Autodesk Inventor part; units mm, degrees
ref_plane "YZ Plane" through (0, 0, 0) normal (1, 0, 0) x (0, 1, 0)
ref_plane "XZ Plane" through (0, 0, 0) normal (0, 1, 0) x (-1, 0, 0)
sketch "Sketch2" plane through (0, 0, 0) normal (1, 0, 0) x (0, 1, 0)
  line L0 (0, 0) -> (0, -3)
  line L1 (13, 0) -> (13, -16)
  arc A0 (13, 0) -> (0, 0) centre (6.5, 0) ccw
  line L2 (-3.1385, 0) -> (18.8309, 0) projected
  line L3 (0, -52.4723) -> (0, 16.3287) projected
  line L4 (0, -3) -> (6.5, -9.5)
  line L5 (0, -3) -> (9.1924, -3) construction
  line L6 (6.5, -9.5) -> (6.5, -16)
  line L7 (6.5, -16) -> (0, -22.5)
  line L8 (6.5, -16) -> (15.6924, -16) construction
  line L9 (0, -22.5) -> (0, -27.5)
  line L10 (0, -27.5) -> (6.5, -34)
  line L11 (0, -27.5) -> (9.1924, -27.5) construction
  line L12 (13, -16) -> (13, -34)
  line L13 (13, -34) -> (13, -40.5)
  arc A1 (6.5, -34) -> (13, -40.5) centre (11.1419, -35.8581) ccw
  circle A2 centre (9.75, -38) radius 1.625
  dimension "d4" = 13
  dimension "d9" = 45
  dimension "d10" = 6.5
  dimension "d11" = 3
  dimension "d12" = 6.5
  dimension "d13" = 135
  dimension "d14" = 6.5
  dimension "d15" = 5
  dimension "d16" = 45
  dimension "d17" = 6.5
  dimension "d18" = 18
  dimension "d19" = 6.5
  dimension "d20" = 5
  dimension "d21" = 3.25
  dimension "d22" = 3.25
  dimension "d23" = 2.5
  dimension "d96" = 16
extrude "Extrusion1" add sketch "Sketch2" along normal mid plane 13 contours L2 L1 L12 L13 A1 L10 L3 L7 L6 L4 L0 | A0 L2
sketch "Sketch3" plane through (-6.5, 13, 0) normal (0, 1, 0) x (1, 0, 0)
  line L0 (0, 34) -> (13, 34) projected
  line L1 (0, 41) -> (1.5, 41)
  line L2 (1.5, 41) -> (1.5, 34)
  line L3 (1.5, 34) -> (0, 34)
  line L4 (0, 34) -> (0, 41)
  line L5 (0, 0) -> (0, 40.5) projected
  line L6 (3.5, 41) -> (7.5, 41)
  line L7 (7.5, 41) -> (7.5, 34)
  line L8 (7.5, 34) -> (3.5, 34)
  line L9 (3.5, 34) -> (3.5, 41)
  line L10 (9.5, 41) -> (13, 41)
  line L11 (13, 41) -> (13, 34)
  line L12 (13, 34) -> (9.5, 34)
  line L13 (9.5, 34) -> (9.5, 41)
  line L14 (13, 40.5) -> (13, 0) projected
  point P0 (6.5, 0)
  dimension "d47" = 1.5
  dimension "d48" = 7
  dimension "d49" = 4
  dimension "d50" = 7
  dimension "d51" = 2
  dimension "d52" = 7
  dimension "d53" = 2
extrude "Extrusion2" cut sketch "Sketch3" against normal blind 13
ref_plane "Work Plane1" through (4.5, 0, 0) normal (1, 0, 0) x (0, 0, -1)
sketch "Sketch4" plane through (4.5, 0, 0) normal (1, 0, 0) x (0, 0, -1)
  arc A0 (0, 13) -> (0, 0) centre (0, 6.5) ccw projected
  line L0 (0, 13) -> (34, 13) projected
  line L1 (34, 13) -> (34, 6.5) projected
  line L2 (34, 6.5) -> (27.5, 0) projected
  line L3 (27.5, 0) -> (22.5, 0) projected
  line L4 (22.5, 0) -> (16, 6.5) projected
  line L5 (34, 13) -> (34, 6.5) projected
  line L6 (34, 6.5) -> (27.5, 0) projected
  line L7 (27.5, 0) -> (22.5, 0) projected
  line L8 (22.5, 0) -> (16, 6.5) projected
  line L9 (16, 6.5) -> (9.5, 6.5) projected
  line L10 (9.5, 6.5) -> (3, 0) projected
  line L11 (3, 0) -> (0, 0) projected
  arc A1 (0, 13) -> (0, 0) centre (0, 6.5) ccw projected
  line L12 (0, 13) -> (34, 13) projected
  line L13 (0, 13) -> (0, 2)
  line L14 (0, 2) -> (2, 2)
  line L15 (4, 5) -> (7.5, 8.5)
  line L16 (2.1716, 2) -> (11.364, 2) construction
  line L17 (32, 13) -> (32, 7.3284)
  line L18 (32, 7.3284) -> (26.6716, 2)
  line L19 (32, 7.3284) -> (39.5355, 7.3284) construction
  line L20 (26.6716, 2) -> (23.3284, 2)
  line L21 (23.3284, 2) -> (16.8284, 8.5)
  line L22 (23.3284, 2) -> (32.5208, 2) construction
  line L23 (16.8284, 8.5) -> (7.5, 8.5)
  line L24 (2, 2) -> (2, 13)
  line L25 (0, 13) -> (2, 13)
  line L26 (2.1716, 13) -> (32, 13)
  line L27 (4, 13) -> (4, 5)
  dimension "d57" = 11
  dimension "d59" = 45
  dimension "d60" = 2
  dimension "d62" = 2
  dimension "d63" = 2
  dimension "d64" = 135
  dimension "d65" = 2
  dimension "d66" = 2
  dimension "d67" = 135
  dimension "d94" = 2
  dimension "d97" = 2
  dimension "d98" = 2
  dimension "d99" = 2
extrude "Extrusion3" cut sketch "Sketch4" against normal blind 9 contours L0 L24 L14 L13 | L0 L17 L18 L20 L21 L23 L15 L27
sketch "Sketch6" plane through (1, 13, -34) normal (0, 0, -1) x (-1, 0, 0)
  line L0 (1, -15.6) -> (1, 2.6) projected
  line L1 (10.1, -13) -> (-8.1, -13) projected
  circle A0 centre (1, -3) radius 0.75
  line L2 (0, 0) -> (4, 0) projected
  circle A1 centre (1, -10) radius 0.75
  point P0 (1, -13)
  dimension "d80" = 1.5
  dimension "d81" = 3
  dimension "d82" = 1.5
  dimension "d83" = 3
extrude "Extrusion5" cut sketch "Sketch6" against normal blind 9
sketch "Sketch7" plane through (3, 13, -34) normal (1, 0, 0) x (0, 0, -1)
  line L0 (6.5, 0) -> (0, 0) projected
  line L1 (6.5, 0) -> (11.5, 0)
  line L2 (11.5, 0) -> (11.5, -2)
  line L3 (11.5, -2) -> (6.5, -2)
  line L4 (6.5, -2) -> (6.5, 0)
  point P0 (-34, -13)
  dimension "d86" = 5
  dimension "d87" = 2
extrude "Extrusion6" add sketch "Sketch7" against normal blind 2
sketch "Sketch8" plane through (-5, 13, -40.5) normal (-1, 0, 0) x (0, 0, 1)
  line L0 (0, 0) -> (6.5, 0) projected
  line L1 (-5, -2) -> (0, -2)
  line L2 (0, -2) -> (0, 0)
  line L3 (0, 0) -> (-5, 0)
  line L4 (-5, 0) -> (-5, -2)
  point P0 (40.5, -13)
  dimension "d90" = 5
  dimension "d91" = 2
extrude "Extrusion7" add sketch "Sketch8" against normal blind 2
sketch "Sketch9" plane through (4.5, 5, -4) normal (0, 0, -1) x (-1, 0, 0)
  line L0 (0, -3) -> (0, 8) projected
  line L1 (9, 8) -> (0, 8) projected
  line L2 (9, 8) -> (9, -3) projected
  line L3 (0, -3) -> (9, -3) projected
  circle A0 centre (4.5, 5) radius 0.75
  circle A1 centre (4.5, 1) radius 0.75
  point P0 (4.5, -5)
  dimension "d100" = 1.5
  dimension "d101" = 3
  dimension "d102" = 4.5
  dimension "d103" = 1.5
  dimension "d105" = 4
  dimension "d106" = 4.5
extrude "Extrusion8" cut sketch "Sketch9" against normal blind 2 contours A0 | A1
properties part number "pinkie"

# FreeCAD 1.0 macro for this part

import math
import FreeCAD as App
import Part
import Sketcher
from FreeCAD import Vector
Q = App.Units.Quantity

doc = App.newDocument("Part")
body = doc.addObject("PartDesign::Body", "Body")

sketch1 = body.newObject("Sketcher::SketchObject", "Sketch")
sketch1.AttachmentSupport = (doc.getObject("YZ_Plane"), [""])
sketch1.MapMode = "FlatFace"
sketch1.addGeometry(Part.ArcOfCircle(Part.Circle(Vector(6.5, 0, 0), Vector(0, 0, 1), 6.5), math.radians(0), math.radians(180)), False)
sketch1.addGeometry(Part.LineSegment(Vector(0, 0, 0), Vector(0, -3, 0)), False)
sketch1.addGeometry(Part.LineSegment(Vector(0, -3, 0), Vector(6.5, -9.5, 0)), False)
sketch1.addGeometry(Part.LineSegment(Vector(6.5, -9.5, 0), Vector(6.5, -16, 0)), False)
sketch1.addGeometry(Part.LineSegment(Vector(6.5, -16, 0), Vector(0, -22.5, 0)), False)
sketch1.addGeometry(Part.LineSegment(Vector(0, -22.5, 0), Vector(0, -27.5, 0)), False)
sketch1.addGeometry(Part.LineSegment(Vector(0, -27.5, 0), Vector(6.5, -34, 0)), False)
sketch1.addGeometry(Part.ArcOfCircle(Part.Circle(Vector(11.1, -35.9, 0), Vector(0, 0, 1), 5), math.radians(158), math.radians(292)), False)
sketch1.addGeometry(Part.LineSegment(Vector(13, -40.5, 0), Vector(13, 0, 0)), False)
sketch1.addGeometry(Part.Circle(Vector(9.8, -38, 0), Vector(0, 0, 1), 1.6), False)
sketch1.addConstraint(Sketcher.Constraint("Tangent", 0, 2, 1, 1))
sketch1.addConstraint(Sketcher.Constraint("Coincident", 1, 2, 2, 1))
sketch1.addConstraint(Sketcher.Constraint("Coincident", 2, 2, 3, 1))
sketch1.addConstraint(Sketcher.Constraint("Coincident", 3, 2, 4, 1))
sketch1.addConstraint(Sketcher.Constraint("Coincident", 4, 2, 5, 1))
sketch1.addConstraint(Sketcher.Constraint("Coincident", 5, 2, 6, 1))
sketch1.addConstraint(Sketcher.Constraint("Coincident", 6, 2, 7, 1))
sketch1.addConstraint(Sketcher.Constraint("Coincident", 7, 2, 8, 1))
sketch1.addConstraint(Sketcher.Constraint("Tangent", 8, 2, 0, 1))
sketch1.addConstraint(Sketcher.Constraint("Vertical", 1))
sketch1.addConstraint(Sketcher.Constraint("Vertical", 3))
sketch1.addConstraint(Sketcher.Constraint("Vertical", 5))
sketch1.addConstraint(Sketcher.Constraint("Vertical", 8))
sketch1.addConstraint(Sketcher.Constraint("Coincident", 0, 2, -1, 1))
sketch1.addConstraint(Sketcher.Constraint("PointOnObject", 4, 2, -2))
sketch1.addConstraint(Sketcher.Constraint("Perpendicular", 2, 4))
sketch1.addConstraint(Sketcher.Constraint("Perpendicular", 4, 6))
sketch1.addConstraint(Sketcher.Constraint("Vertical", 0, 3, 2, 2))
sketch1.addConstraint(Sketcher.Constraint("Vertical", 3, 2, 6, 2))
sketch1.addConstraint(Sketcher.Constraint("Equal", 2, 4))
sketch1.addConstraint(Sketcher.Constraint("Radius", 7, Q("5 mm")))
sketch1.addConstraint(Sketcher.Constraint("Radius", 0, Q("6.5 mm")))
sketch1.addConstraint(Sketcher.Constraint("Diameter", 9, Q("3.25 mm")))
sketch1.addConstraint(Sketcher.Constraint("DistanceY", 1, 2, 1, 1, Q("3 mm")))
sketch1.addConstraint(Sketcher.Constraint("DistanceY", 5, 2, 5, 1, Q("5 mm")))
sketch1.addConstraint(Sketcher.Constraint("DistanceY", 3, 2, 3, 1, Q("6.5 mm")))
sketch1.addConstraint(Sketcher.Constraint("DistanceY", 7, 2, 5, 2, Q("13 mm")))
sketch1.addConstraint(Sketcher.Constraint("DistanceY", 7, 2, 9, 3, Q("2.5 mm")))
sketch1.addConstraint(Sketcher.Constraint("DistanceX", 0, 3, 9, 3, Q("3.25 mm")))
pad1 = body.newObject("PartDesign::Pad", "Pad")
pad1.Profile = sketch1
pad1.Length = 13
pad1.Midplane = True

sketch2 = body.newObject("Sketcher::SketchObject", "Sketch001")
sketch2.AttachmentSupport = (doc.getObject("XZ_Plane"), [""])
sketch2.MapMode = "FlatFace"
sketch2.AttachmentOffset = App.Placement(Vector(0, 0, -13), App.Rotation())
sketch2.addGeometry(Part.LineSegment(Vector(-6.5, -41, 0), Vector(-6.5, -34, 0)), False)
sketch2.addGeometry(Part.LineSegment(Vector(-6.5, -34, 0), Vector(-5, -34, 0)), False)
sketch2.addGeometry(Part.LineSegment(Vector(-5, -34, 0), Vector(-5, -41, 0)), False)
sketch2.addGeometry(Part.LineSegment(Vector(-5, -41, 0), Vector(-6.5, -41, 0)), False)
sketch2.addGeometry(Part.LineSegment(Vector(3, -41, 0), Vector(3, -34, 0)), False)
sketch2.addGeometry(Part.LineSegment(Vector(3, -34, 0), Vector(6.5, -34, 0)), False)
sketch2.addGeometry(Part.LineSegment(Vector(6.5, -34, 0), Vector(6.5, -41, 0)), False)
sketch2.addGeometry(Part.LineSegment(Vector(6.5, -41, 0), Vector(3, -41, 0)), False)
sketch2.addGeometry(Part.LineSegment(Vector(-3, -41, 0), Vector(-3, -34, 0)), False)
sketch2.addGeometry(Part.LineSegment(Vector(-3, -34, 0), Vector(1, -34, 0)), False)
sketch2.addGeometry(Part.LineSegment(Vector(1, -34, 0), Vector(1, -41, 0)), False)
sketch2.addGeometry(Part.LineSegment(Vector(1, -41, 0), Vector(-3, -41, 0)), False)
sketch2.addConstraint(Sketcher.Constraint("Coincident", 0, 2, 1, 1))
sketch2.addConstraint(Sketcher.Constraint("Coincident", 1, 2, 2, 1))
sketch2.addConstraint(Sketcher.Constraint("Coincident", 2, 2, 3, 1))
sketch2.addConstraint(Sketcher.Constraint("Coincident", 3, 2, 0, 1))
sketch2.addConstraint(Sketcher.Constraint("Coincident", 4, 2, 5, 1))
sketch2.addConstraint(Sketcher.Constraint("Coincident", 5, 2, 6, 1))
sketch2.addConstraint(Sketcher.Constraint("Coincident", 6, 2, 7, 1))
sketch2.addConstraint(Sketcher.Constraint("Coincident", 7, 2, 4, 1))
sketch2.addConstraint(Sketcher.Constraint("Coincident", 8, 2, 9, 1))
sketch2.addConstraint(Sketcher.Constraint("Coincident", 9, 2, 10, 1))
sketch2.addConstraint(Sketcher.Constraint("Coincident", 10, 2, 11, 1))
sketch2.addConstraint(Sketcher.Constraint("Coincident", 11, 2, 8, 1))
sketch2.addConstraint(Sketcher.Constraint("Vertical", 0))
sketch2.addConstraint(Sketcher.Constraint("Horizontal", 1))
sketch2.addConstraint(Sketcher.Constraint("Vertical", 2))
sketch2.addConstraint(Sketcher.Constraint("Horizontal", 3))
sketch2.addConstraint(Sketcher.Constraint("Vertical", 4))
sketch2.addConstraint(Sketcher.Constraint("Horizontal", 5))
sketch2.addConstraint(Sketcher.Constraint("Vertical", 6))
sketch2.addConstraint(Sketcher.Constraint("Horizontal", 7))
sketch2.addConstraint(Sketcher.Constraint("Vertical", 8))
sketch2.addConstraint(Sketcher.Constraint("Horizontal", 9))
sketch2.addConstraint(Sketcher.Constraint("Vertical", 10))
sketch2.addConstraint(Sketcher.Constraint("Horizontal", 11))
sketch2.addConstraint(Sketcher.Constraint("Symmetric", 0, 2, 5, 2, -2))
sketch2.addConstraint(Sketcher.Constraint("Symmetric", 4, 2, 8, 2, -2))
sketch2.addConstraint(Sketcher.Constraint("Horizontal", 3, 2, 6, 2))
sketch2.addConstraint(Sketcher.Constraint("Horizontal", 7, 2, 10, 2))
sketch2.addConstraint(Sketcher.Constraint("DistanceX", 9, 1, 9, 2, Q("4 mm")))
sketch2.addConstraint(Sketcher.Constraint("DistanceY", 0, 1, 0, 2, Q("7 mm")))
sketch2.addConstraint(Sketcher.Constraint("DistanceX", 1, 1, 1, 2, Q("1.5 mm")))
sketch2.addConstraint(Sketcher.Constraint("DistanceX", 1, 2, 8, 2, Q("2 mm")))
sketch2.addConstraint(Sketcher.Constraint("DistanceX", 9, 2, 4, 2, Q("2 mm")))
sketch2.addConstraint(Sketcher.Constraint("DistanceY", 0, 2, -1, 1, Q("34 mm")))
pocket1 = body.newObject("PartDesign::Pocket", "Pocket")
pocket1.Profile = sketch2
pocket1.Length = 13
pocket1.Reversed = True

sketch3 = body.newObject("Sketcher::SketchObject", "Sketch002")
sketch3.AttachmentSupport = (doc.getObject("YZ_Plane"), [""])
sketch3.MapMode = "FlatFace"
sketch3.AttachmentOffset = App.Placement(Vector(0, 0, 4.5), App.Rotation())
sketch3.addGeometry(Part.LineSegment(Vector(13, -2, 0), Vector(13, 0, 0)), False)
sketch3.addGeometry(Part.LineSegment(Vector(13, 0, 0), Vector(2, 0, 0)), False)
sketch3.addGeometry(Part.LineSegment(Vector(2, 0, 0), Vector(2, -2, 0)), False)
sketch3.addGeometry(Part.LineSegment(Vector(2, -2, 0), Vector(13, -2, 0)), False)
sketch3.addGeometry(Part.LineSegment(Vector(13, -32, 0), Vector(13, -4, 0)), False)
sketch3.addGeometry(Part.LineSegment(Vector(13, -4, 0), Vector(5, -4, 0)), False)
sketch3.addGeometry(Part.LineSegment(Vector(5, -4, 0), Vector(8.5, -7.5, 0)), False)
sketch3.addGeometry(Part.LineSegment(Vector(8.5, -7.5, 0), Vector(8.5, -16.8, 0)), False)
sketch3.addGeometry(Part.LineSegment(Vector(8.5, -16.8, 0), Vector(2, -23.3, 0)), False)
sketch3.addGeometry(Part.LineSegment(Vector(2, -23.3, 0), Vector(2, -26.7, 0)), False)
sketch3.addGeometry(Part.LineSegment(Vector(2, -26.7, 0), Vector(7.3, -32, 0)), False)
sketch3.addGeometry(Part.LineSegment(Vector(7.3, -32, 0), Vector(13, -32, 0)), False)
sketch3.addConstraint(Sketcher.Constraint("Coincident", 0, 2, 1, 1))
sketch3.addConstraint(Sketcher.Constraint("Coincident", 1, 2, 2, 1))
sketch3.addConstraint(Sketcher.Constraint("Coincident", 2, 2, 3, 1))
sketch3.addConstraint(Sketcher.Constraint("Coincident", 3, 2, 0, 1))
sketch3.addConstraint(Sketcher.Constraint("Coincident", 4, 2, 5, 1))
sketch3.addConstraint(Sketcher.Constraint("Coincident", 5, 2, 6, 1))
sketch3.addConstraint(Sketcher.Constraint("Coincident", 6, 2, 7, 1))
sketch3.addConstraint(Sketcher.Constraint("Coincident", 7, 2, 8, 1))
sketch3.addConstraint(Sketcher.Constraint("Coincident", 8, 2, 9, 1))
sketch3.addConstraint(Sketcher.Constraint("Coincident", 9, 2, 10, 1))
sketch3.addConstraint(Sketcher.Constraint("Coincident", 10, 2, 11, 1))
sketch3.addConstraint(Sketcher.Constraint("Coincident", 11, 2, 4, 1))
sketch3.addConstraint(Sketcher.Constraint("Vertical", 0))
sketch3.addConstraint(Sketcher.Constraint("Horizontal", 1))
sketch3.addConstraint(Sketcher.Constraint("Vertical", 2))
sketch3.addConstraint(Sketcher.Constraint("Horizontal", 3))
sketch3.addConstraint(Sketcher.Constraint("Vertical", 4))
sketch3.addConstraint(Sketcher.Constraint("Horizontal", 5))
sketch3.addConstraint(Sketcher.Constraint("Vertical", 7))
sketch3.addConstraint(Sketcher.Constraint("Vertical", 9))
sketch3.addConstraint(Sketcher.Constraint("Horizontal", 11))
sketch3.addConstraint(Sketcher.Constraint("PointOnObject", 0, 2, -1))
sketch3.addConstraint(Sketcher.Constraint("Perpendicular", 6, 8))
sketch3.addConstraint(Sketcher.Constraint("Perpendicular", 8, 10))
sketch3.addConstraint(Sketcher.Constraint("Vertical", 3, 2, 4, 2))
sketch3.addConstraint(Sketcher.Constraint("Vertical", 2, 2, 8, 2))
sketch3.addConstraint(Sketcher.Constraint("DistanceX", 1, 2, 1, 1, Q("11 mm")))
sketch3.addConstraint(Sketcher.Constraint("DistanceY", 0, 1, 0, 2, Q("2 mm")))
sketch3.addConstraint(Sketcher.Constraint("Angle", 6, Q("-45 deg")))
sketch3.addConstraint(Sketcher.Constraint("DistanceX", -1, 1, 1, 2, Q("2 mm")))
sketch3.addConstraint(Sketcher.Constraint("DistanceY", 4, 2, 3, 2, Q("2 mm")))
sketch3.addConstraint(Sketcher.Constraint("DistanceX", 5, 2, 5, 1, Q("8 mm")))
sketch3.addConstraint(Sketcher.Constraint("DistanceY", 4, 1, 4, 2, Q("28 mm")))
sketch3.addConstraint(Sketcher.Constraint("DistanceX", -1, 1, 6, 2, Q("8.5 mm")))
sketch3.addConstraint(Sketcher.Constraint("DistanceX", 11, 1, 11, 2, Q("5.6716 mm")))
sketch3.addConstraint(Sketcher.Constraint("DistanceY", 7, 2, 7, 1, Q("9.3284 mm")))
pocket2 = body.newObject("PartDesign::Pocket", "Pocket001")
pocket2.Profile = sketch3
pocket2.Length = 9

sketch4 = body.newObject("Sketcher::SketchObject", "Sketch003")
sketch4.AttachmentSupport = (doc.getObject("XY_Plane"), [""])
sketch4.MapMode = "FlatFace"
sketch4.AttachmentOffset = App.Placement(Vector(0, 0, -34), App.Rotation())
sketch4.addGeometry(Part.Circle(Vector(0, 3, 0), Vector(0, 0, 1), 0.8), False)
sketch4.addGeometry(Part.Circle(Vector(0, 10, 0), Vector(0, 0, 1), 0.8), False)
sketch4.addConstraint(Sketcher.Constraint("Equal", 0, 1))
sketch4.addConstraint(Sketcher.Constraint("PointOnObject", 0, 3, -2))
sketch4.addConstraint(Sketcher.Constraint("PointOnObject", 1, 3, -2))
sketch4.addConstraint(Sketcher.Constraint("Diameter", 0, Q("1.5 mm")))
sketch4.addConstraint(Sketcher.Constraint("DistanceY", -1, 1, 0, 3, Q("3 mm")))
sketch4.addConstraint(Sketcher.Constraint("DistanceY", -1, 1, 1, 3, Q("10 mm")))
pocket3 = body.newObject("PartDesign::Pocket", "Pocket002")
pocket3.Profile = sketch4
pocket3.Length = 9
pocket3.Reversed = True

sketch5 = body.newObject("Sketcher::SketchObject", "Sketch004")
sketch5.AttachmentSupport = (doc.getObject("YZ_Plane"), [""])
sketch5.MapMode = "FlatFace"
sketch5.AttachmentOffset = App.Placement(Vector(0, 0, 3), App.Rotation())
sketch5.addGeometry(Part.LineSegment(Vector(13, -45.5, 0), Vector(13, -40.5, 0)), False)
sketch5.addGeometry(Part.LineSegment(Vector(13, -40.5, 0), Vector(11, -40.5, 0)), False)
sketch5.addGeometry(Part.LineSegment(Vector(11, -40.5, 0), Vector(11, -45.5, 0)), False)
sketch5.addGeometry(Part.LineSegment(Vector(11, -45.5, 0), Vector(13, -45.5, 0)), False)
sketch5.addConstraint(Sketcher.Constraint("Coincident", 0, 2, 1, 1))
sketch5.addConstraint(Sketcher.Constraint("Coincident", 1, 2, 2, 1))
sketch5.addConstraint(Sketcher.Constraint("Coincident", 2, 2, 3, 1))
sketch5.addConstraint(Sketcher.Constraint("Coincident", 3, 2, 0, 1))
sketch5.addConstraint(Sketcher.Constraint("Vertical", 0))
sketch5.addConstraint(Sketcher.Constraint("Horizontal", 1))
sketch5.addConstraint(Sketcher.Constraint("Vertical", 2))
sketch5.addConstraint(Sketcher.Constraint("Horizontal", 3))
sketch5.addConstraint(Sketcher.Constraint("DistanceX", 1, 2, 1, 1, Q("2 mm")))
sketch5.addConstraint(Sketcher.Constraint("DistanceY", 0, 1, 0, 2, Q("5 mm")))
sketch5.addConstraint(Sketcher.Constraint("DistanceX", -1, 1, 0, 2, Q("13 mm")))
sketch5.addConstraint(Sketcher.Constraint("DistanceY", 0, 2, -1, 1, Q("40.5 mm")))
pad2 = body.newObject("PartDesign::Pad", "Pad001")
pad2.Profile = sketch5
pad2.Length = 2
pad2.Reversed = True

sketch6 = body.newObject("Sketcher::SketchObject", "Sketch005")
sketch6.AttachmentSupport = (doc.getObject("YZ_Plane"), [""])
sketch6.MapMode = "FlatFace"
sketch6.AttachmentOffset = App.Placement(Vector(0, 0, -5), App.Rotation())
sketch6.addGeometry(Part.LineSegment(Vector(13, -45.5, 0), Vector(11, -45.5, 0)), False)
sketch6.addGeometry(Part.LineSegment(Vector(11, -45.5, 0), Vector(11, -40.5, 0)), False)
sketch6.addGeometry(Part.LineSegment(Vector(11, -40.5, 0), Vector(13, -40.5, 0)), False)
sketch6.addGeometry(Part.LineSegment(Vector(13, -40.5, 0), Vector(13, -45.5, 0)), False)
sketch6.addConstraint(Sketcher.Constraint("Coincident", 0, 2, 1, 1))
sketch6.addConstraint(Sketcher.Constraint("Coincident", 1, 2, 2, 1))
sketch6.addConstraint(Sketcher.Constraint("Coincident", 2, 2, 3, 1))
sketch6.addConstraint(Sketcher.Constraint("Coincident", 3, 2, 0, 1))
sketch6.addConstraint(Sketcher.Constraint("Horizontal", 0))
sketch6.addConstraint(Sketcher.Constraint("Vertical", 1))
sketch6.addConstraint(Sketcher.Constraint("Horizontal", 2))
sketch6.addConstraint(Sketcher.Constraint("Vertical", 3))
sketch6.addConstraint(Sketcher.Constraint("DistanceX", 0, 2, 0, 1, Q("2 mm")))
sketch6.addConstraint(Sketcher.Constraint("DistanceY", 1, 1, 1, 2, Q("5 mm")))
sketch6.addConstraint(Sketcher.Constraint("DistanceX", -1, 1, 0, 2, Q("11 mm")))
sketch6.addConstraint(Sketcher.Constraint("DistanceY", 0, 2, -1, 1, Q("45.5 mm")))
pad3 = body.newObject("PartDesign::Pad", "Pad002")
pad3.Profile = sketch6
pad3.Length = 2

sketch7 = body.newObject("Sketcher::SketchObject", "Sketch006")
sketch7.AttachmentSupport = (doc.getObject("XY_Plane"), [""])
sketch7.MapMode = "FlatFace"
sketch7.AttachmentOffset = App.Placement(Vector(0, 0, -4), App.Rotation())
sketch7.addGeometry(Part.Circle(Vector(0, 10, 0), Vector(0, 0, 1), 0.8), False)
sketch7.addGeometry(Part.Circle(Vector(0, 6, 0), Vector(0, 0, 1), 0.8), False)
sketch7.addConstraint(Sketcher.Constraint("Equal", 0, 1))
sketch7.addConstraint(Sketcher.Constraint("PointOnObject", 0, 3, -2))
sketch7.addConstraint(Sketcher.Constraint("PointOnObject", 1, 3, -2))
sketch7.addConstraint(Sketcher.Constraint("Diameter", 0, Q("1.5 mm")))
sketch7.addConstraint(Sketcher.Constraint("DistanceY", 1, 3, 0, 3, Q("4 mm")))
sketch7.addConstraint(Sketcher.Constraint("DistanceY", -1, 1, 0, 3, Q("10 mm")))
pocket4 = body.newObject("PartDesign::Pocket", "Pocket003")
pocket4.Profile = sketch7
pocket4.Length = 2
pocket4.Reversed = True

doc.recompute()
